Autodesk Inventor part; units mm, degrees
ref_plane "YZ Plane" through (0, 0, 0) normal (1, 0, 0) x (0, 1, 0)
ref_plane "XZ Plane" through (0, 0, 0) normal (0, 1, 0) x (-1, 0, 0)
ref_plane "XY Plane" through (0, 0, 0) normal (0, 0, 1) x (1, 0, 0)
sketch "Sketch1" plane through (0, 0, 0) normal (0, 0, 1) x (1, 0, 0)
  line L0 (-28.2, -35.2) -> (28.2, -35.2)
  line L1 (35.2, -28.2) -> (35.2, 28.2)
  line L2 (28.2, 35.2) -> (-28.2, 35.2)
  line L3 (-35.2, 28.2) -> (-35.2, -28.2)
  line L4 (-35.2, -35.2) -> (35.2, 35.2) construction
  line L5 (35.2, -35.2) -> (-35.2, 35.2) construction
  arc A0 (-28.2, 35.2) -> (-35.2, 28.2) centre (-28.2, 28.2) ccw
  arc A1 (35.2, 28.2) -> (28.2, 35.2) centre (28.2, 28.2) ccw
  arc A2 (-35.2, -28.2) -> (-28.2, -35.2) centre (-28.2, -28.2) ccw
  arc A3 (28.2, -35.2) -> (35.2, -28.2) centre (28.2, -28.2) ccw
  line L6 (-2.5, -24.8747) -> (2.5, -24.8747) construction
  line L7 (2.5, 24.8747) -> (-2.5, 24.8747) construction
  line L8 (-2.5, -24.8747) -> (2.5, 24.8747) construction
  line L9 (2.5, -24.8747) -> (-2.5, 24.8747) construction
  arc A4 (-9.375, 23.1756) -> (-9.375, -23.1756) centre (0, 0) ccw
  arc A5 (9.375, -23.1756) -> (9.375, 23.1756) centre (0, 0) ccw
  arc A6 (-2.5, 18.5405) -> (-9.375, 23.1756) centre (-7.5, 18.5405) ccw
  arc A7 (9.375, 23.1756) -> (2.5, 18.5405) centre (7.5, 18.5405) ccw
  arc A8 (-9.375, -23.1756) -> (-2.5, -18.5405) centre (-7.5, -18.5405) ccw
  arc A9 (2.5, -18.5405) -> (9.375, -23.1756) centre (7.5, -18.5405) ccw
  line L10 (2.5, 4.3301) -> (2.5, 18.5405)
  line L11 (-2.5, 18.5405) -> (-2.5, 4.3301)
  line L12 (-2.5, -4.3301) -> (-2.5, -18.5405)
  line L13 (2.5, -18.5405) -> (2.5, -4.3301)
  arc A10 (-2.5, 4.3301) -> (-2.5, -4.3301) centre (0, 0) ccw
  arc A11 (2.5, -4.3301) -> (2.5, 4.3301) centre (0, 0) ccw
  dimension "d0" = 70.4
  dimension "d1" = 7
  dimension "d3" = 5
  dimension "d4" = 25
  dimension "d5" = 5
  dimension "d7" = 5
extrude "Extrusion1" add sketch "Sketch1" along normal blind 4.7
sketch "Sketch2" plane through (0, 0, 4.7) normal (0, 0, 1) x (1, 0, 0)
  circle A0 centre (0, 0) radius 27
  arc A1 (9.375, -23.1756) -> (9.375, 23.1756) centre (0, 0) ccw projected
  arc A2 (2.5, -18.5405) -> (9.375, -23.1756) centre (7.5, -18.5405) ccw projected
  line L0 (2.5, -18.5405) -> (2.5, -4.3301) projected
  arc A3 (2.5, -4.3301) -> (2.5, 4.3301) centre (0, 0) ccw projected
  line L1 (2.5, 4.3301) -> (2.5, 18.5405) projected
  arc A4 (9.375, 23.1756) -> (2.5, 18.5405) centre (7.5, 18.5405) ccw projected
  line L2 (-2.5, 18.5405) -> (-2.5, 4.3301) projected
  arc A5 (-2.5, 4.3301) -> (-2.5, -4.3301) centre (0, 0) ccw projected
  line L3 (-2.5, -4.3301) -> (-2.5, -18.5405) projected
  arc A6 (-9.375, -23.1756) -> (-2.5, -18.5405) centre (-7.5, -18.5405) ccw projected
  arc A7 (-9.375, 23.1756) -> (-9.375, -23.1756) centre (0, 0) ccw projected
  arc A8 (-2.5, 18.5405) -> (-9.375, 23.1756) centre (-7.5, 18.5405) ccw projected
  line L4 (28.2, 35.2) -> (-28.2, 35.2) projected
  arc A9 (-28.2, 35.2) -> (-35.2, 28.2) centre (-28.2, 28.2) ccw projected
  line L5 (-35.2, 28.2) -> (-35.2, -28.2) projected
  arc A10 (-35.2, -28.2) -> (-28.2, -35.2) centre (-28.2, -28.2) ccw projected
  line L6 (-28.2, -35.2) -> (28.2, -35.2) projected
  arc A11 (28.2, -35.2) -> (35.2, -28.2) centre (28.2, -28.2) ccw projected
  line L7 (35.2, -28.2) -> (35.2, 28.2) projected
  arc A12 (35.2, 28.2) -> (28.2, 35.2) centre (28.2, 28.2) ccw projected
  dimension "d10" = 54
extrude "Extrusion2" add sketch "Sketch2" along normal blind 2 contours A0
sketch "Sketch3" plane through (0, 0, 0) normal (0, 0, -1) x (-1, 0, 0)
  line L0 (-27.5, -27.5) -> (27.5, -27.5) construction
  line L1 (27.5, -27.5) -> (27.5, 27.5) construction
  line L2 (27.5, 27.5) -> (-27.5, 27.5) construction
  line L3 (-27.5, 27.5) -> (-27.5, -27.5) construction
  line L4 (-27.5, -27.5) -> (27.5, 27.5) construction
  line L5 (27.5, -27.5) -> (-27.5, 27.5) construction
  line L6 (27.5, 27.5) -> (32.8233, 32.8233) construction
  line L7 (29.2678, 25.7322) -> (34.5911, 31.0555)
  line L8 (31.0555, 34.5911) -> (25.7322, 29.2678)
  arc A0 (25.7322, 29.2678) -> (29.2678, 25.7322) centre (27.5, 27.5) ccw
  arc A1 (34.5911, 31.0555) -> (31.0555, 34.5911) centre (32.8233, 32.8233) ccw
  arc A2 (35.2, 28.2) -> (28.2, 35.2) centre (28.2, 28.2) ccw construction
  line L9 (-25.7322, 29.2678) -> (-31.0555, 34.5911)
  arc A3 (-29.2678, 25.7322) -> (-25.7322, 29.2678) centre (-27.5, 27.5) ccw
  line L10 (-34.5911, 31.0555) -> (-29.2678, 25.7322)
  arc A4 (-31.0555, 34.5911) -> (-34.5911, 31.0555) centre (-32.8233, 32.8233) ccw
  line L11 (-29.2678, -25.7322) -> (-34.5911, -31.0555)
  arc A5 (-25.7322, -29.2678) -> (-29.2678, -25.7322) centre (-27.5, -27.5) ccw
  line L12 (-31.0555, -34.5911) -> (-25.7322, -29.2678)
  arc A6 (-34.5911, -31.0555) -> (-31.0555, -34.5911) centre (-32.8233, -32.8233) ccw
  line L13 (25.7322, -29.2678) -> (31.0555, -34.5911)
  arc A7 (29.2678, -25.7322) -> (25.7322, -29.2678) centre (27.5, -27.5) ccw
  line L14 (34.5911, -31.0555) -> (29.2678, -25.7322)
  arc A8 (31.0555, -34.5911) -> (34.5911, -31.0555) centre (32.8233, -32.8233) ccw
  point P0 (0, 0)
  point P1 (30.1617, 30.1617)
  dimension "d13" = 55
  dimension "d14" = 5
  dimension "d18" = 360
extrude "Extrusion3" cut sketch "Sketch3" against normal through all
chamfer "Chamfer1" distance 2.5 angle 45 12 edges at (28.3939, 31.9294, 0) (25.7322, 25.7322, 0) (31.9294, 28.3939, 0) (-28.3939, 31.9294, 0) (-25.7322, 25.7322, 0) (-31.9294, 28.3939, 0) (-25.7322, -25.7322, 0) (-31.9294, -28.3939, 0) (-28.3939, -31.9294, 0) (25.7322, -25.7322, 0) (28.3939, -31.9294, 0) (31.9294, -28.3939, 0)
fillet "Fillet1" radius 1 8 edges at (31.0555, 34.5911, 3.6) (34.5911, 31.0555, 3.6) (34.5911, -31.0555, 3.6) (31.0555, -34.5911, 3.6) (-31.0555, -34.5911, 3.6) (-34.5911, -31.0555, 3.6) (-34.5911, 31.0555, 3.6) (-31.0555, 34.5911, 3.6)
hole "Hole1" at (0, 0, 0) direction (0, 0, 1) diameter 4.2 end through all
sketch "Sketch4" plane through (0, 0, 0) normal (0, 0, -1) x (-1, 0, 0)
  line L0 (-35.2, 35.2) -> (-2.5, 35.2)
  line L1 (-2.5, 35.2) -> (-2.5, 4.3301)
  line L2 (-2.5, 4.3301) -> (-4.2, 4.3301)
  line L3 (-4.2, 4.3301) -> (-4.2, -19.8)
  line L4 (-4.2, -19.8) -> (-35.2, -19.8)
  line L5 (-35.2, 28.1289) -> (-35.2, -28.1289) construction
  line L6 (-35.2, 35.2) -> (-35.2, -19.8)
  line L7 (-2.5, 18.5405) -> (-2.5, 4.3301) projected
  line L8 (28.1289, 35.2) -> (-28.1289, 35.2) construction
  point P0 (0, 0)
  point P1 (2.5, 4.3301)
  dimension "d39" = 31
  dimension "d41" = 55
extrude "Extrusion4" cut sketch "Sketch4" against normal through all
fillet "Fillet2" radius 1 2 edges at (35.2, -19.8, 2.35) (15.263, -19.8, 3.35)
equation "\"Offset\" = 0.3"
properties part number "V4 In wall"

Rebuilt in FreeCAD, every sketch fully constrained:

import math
import FreeCAD as App
import Part
import Sketcher

V = App.Vector


def edges_at(feature, points):
    """Names of the edges that pass closest to the given points."""
    edges = feature.Shape.Edges
    near = lambda p: min(range(len(edges)), key=lambda i: edges[i].distToShape(Part.Vertex(*p))[0])
    return sorted({f"Edge{near(p) + 1}" for p in points})


def add_polygon(sketch, points):
    """Adds a closed chain of lines whose ends are joined by coincident constraints."""
    first, n = sketch.GeometryCount, len(points)
    for a, b in zip(points, points[1:] + points[:1]):
        sketch.addGeometry(Part.LineSegment(App.Vector(*a, 0), App.Vector(*b, 0)), False)
    for i in range(n):
        sketch.addConstraint(Sketcher.Constraint("Coincident", first + i, 2, first + (i + 1) % n, 1))

doc = App.newDocument("Part")
body = doc.addObject("PartDesign::Body", "Body")

# Sketch on XY plane
sketch1 = body.newObject("Sketcher::SketchObject", "Sketch")
sketch1.AttachmentSupport = (doc.getObject("XY_Plane"), [""])
sketch1.MapMode = "FlatFace"
sketch1.addGeometry([
    Part.ArcOfCircle(Part.Circle(V(-28.2, -28.2, 0), V(0, 0, 1), 7), math.radians(180), math.radians(270)),  # 0
    Part.LineSegment(V(-28.2, -35.2, 0), V(28.2, -35.2, 0)),  # 1
    Part.ArcOfCircle(Part.Circle(V(28.2, -28.2, 0), V(0, 0, 1), 7), math.radians(-90), math.radians(0)),  # 2
    Part.LineSegment(V(35.2, -28.2, 0), V(35.2, 28.2, 0)),  # 3
    Part.ArcOfCircle(Part.Circle(V(28.2, 28.2, 0), V(0, 0, 1), 7), math.radians(0), math.radians(90)),  # 4
    Part.LineSegment(V(28.2, 35.2, 0), V(-28.2, 35.2, 0)),  # 5
    Part.ArcOfCircle(Part.Circle(V(-28.2, 28.2, 0), V(0, 0, 1), 7), math.radians(90), math.radians(180)),  # 6
    Part.LineSegment(V(-35.2, 28.2, 0), V(-35.2, -28.2, 0)),  # 7
    Part.ArcOfCircle(Part.Circle(V(0, 0, 0), V(0, 0, 1), 25), math.radians(-68), math.radians(68)),  # 8
    Part.ArcOfCircle(Part.Circle(V(7.5, -18.5, 0), V(0, 0, 1), 5), math.radians(180), math.radians(292)),  # 9
    Part.LineSegment(V(2.5, -18.5, 0), V(2.5, -4.3, 0)),  # 10
    Part.ArcOfCircle(Part.Circle(V(0, 0, 0), V(0, 0, 1), 5), math.radians(-60), math.radians(60)),  # 11
    Part.LineSegment(V(2.5, 4.3, 0), V(2.5, 18.5, 0)),  # 12
    Part.ArcOfCircle(Part.Circle(V(7.5, 18.5, 0), V(0, 0, 1), 5), math.radians(68), math.radians(180)),  # 13
    Part.ArcOfCircle(Part.Circle(V(0, 0, 0), V(0, 0, 1), 25), math.radians(112), math.radians(248)),  # 14
    Part.ArcOfCircle(Part.Circle(V(-7.5, 18.5, 0), V(0, 0, 1), 5), math.radians(0), math.radians(112)),  # 15
    Part.LineSegment(V(-2.5, 18.5, 0), V(-2.5, 4.3, 0)),  # 16
    Part.ArcOfCircle(Part.Circle(V(0, 0, 0), V(0, 0, 1), 5), math.radians(120), math.radians(240)),  # 17
    Part.LineSegment(V(-2.5, -4.3, 0), V(-2.5, -18.5, 0)),  # 18
    Part.ArcOfCircle(Part.Circle(V(-7.5, -18.5, 0), V(0, 0, 1), 5), math.radians(-112), math.radians(0)),  # 19
], False)
sketch1.addConstraint([
    Sketcher.Constraint("Tangent", 0, 2, 1, 1),
    Sketcher.Constraint("Tangent", 1, 2, 2, 1),
    Sketcher.Constraint("Tangent", 2, 2, 3, 1),
    Sketcher.Constraint("Tangent", 3, 2, 4, 1),
    Sketcher.Constraint("Tangent", 4, 2, 5, 1),
    Sketcher.Constraint("Tangent", 5, 2, 6, 1),
    Sketcher.Constraint("Tangent", 6, 2, 7, 1),
    Sketcher.Constraint("Tangent", 7, 2, 0, 1),
    Sketcher.Constraint("Tangent", 8, 1, 9, 2),
    Sketcher.Constraint("Tangent", 9, 1, 10, 1),
    Sketcher.Constraint("Coincident", 10, 2, 11, 1),
    Sketcher.Constraint("Coincident", 11, 2, 12, 1),
    Sketcher.Constraint("Tangent", 12, 2, 13, 2),
    Sketcher.Constraint("Tangent", 13, 1, 8, 2),
    Sketcher.Constraint("Tangent", 14, 1, 15, 2),
    Sketcher.Constraint("Tangent", 15, 1, 16, 1),
    Sketcher.Constraint("Coincident", 16, 2, 17, 1),
    Sketcher.Constraint("Coincident", 17, 2, 18, 1),
    Sketcher.Constraint("Tangent", 18, 2, 19, 2),
    Sketcher.Constraint("Tangent", 19, 1, 14, 2),
    Sketcher.Constraint("Horizontal", 1),
    Sketcher.Constraint("Vertical", 3),
    Sketcher.Constraint("Horizontal", 5),
    Sketcher.Constraint("Vertical", 7),
    Sketcher.Constraint("Vertical", 10),
    Sketcher.Constraint("Vertical", 12),
    Sketcher.Constraint("Vertical", 16),
    Sketcher.Constraint("Vertical", 18),
    Sketcher.Constraint("Coincident", 8, 3, -1, 1),
    Sketcher.Constraint("Coincident", 11, 3, -1, 1),
    Sketcher.Constraint("Coincident", 14, 3, -1, 1),
    Sketcher.Constraint("Coincident", 17, 3, -1, 1),
    Sketcher.Constraint("Equal", 0, 2),
    Sketcher.Constraint("Equal", 2, 4),
    Sketcher.Constraint("Equal", 4, 6),
    Sketcher.Constraint("Equal", 9, 11),
    Sketcher.Constraint("Equal", 11, 13),
    Sketcher.Constraint("Equal", 8, 14),
    Sketcher.Constraint("Equal", 13, 15),
    Sketcher.Constraint("Equal", 15, 17),
    Sketcher.Constraint("Equal", 17, 19),
    Sketcher.Constraint("Symmetric", 0, 3, 4, 3, -1, 1),
    Sketcher.Constraint("Horizontal", 13, 3, 15, 3),
    Sketcher.Constraint("Horizontal", 9, 3, 19, 3),
    Sketcher.Constraint("Vertical", 9, 3, 13, 3),
    Sketcher.Constraint("Equal", 5, 3),
    Sketcher.Constraint("Radius", 0, 7.0),
    Sketcher.Constraint("Radius", 8, 25.0),
    Sketcher.Constraint("Radius", 9, 5.0),
    Sketcher.Constraint("DistanceX", 15, 1, 12, 2, 5.0),
    Sketcher.Constraint("DistanceX", 1, 1, 1, 2, 56.4),
])
pad1 = body.newObject("PartDesign::Pad", "Pad")
pad1.Profile = sketch1
pad1.Length = 4.7

# Sketch on XY plane
sketch2 = body.newObject("Sketcher::SketchObject", "Sketch001")
sketch2.AttachmentSupport = (doc.getObject("XY_Plane"), [""])
sketch2.MapMode = "FlatFace"
sketch2.AttachmentOffset = App.Placement(V(0, 0, 4.7), App.Rotation())
sketch2.addGeometry([
    Part.Circle(V(0, 0, 0), V(0, 0, 1), 27),  # 0
    Part.ArcOfCircle(Part.Circle(V(0, 0, 0), V(0, 0, 1), 25), math.radians(-68), math.radians(68)),  # 1
    Part.ArcOfCircle(Part.Circle(V(7.5, -18.5, 0), V(0, 0, 1), 5), math.radians(180), math.radians(292)),  # 2
    Part.LineSegment(V(2.5, -18.5, 0), V(2.5, -4.3, 0)),  # 3
    Part.ArcOfCircle(Part.Circle(V(0, 0, 0), V(0, 0, 1), 5), math.radians(-60), math.radians(60)),  # 4
    Part.LineSegment(V(2.5, 4.3, 0), V(2.5, 18.5, 0)),  # 5
    Part.ArcOfCircle(Part.Circle(V(7.5, 18.5, 0), V(0, 0, 1), 5), math.radians(68), math.radians(180)),  # 6
    Part.ArcOfCircle(Part.Circle(V(-7.5, 18.5, 0), V(0, 0, 1), 5), math.radians(0), math.radians(112)),  # 7
    Part.LineSegment(V(-2.5, 18.5, 0), V(-2.5, 4.3, 0)),  # 8
    Part.ArcOfCircle(Part.Circle(V(0, 0, 0), V(0, 0, 1), 5), math.radians(120), math.radians(240)),  # 9
    Part.LineSegment(V(-2.5, -4.3, 0), V(-2.5, -18.5, 0)),  # 10
    Part.ArcOfCircle(Part.Circle(V(-7.5, -18.5, 0), V(0, 0, 1), 5), math.radians(-112), math.radians(0)),  # 11
    Part.ArcOfCircle(Part.Circle(V(0, 0, 0), V(0, 0, 1), 25), math.radians(112), math.radians(248)),  # 12
], False)
sketch2.addConstraint([
    Sketcher.Constraint("Tangent", 1, 1, 2, 2),
    Sketcher.Constraint("Tangent", 2, 1, 3, 1),
    Sketcher.Constraint("Coincident", 3, 2, 4, 1),
    Sketcher.Constraint("Coincident", 4, 2, 5, 1),
    Sketcher.Constraint("Tangent", 5, 2, 6, 2),
    Sketcher.Constraint("Tangent", 6, 1, 1, 2),
    Sketcher.Constraint("Tangent", 7, 1, 8, 1),
    Sketcher.Constraint("Coincident", 8, 2, 9, 1),
    Sketcher.Constraint("Coincident", 9, 2, 10, 1),
    Sketcher.Constraint("Tangent", 10, 2, 11, 2),
    Sketcher.Constraint("Tangent", 11, 1, 12, 2),
    Sketcher.Constraint("Tangent", 12, 1, 7, 2),
    Sketcher.Constraint("Vertical", 3),
    Sketcher.Constraint("Vertical", 5),
    Sketcher.Constraint("Vertical", 8),
    Sketcher.Constraint("Vertical", 10),
    Sketcher.Constraint("Coincident", 0, 3, -1, 1),
    Sketcher.Constraint("Coincident", 1, 3, -1, 1),
    Sketcher.Constraint("Coincident", 4, 3, -1, 1),
    Sketcher.Constraint("Coincident", 9, 3, -1, 1),
    Sketcher.Constraint("Coincident", 12, 3, -1, 1),
    Sketcher.Constraint("Equal", 2, 4),
    Sketcher.Constraint("Equal", 4, 6),
    Sketcher.Constraint("Equal", 6, 7),
    Sketcher.Constraint("Equal", 7, 9),
    Sketcher.Constraint("Equal", 9, 11),
    Sketcher.Constraint("Equal", 1, 12),
    Sketcher.Constraint("Horizontal", 6, 3, 7, 3),
    Sketcher.Constraint("Horizontal", 2, 3, 11, 3),
    Sketcher.Constraint("Vertical", 2, 3, 6, 3),
    Sketcher.Constraint("Diameter", 0, 54.0),
    Sketcher.Constraint("Radius", 1, 25.0),
    Sketcher.Constraint("Radius", 2, 5.0),
    Sketcher.Constraint("DistanceX", 7, 3, 6, 3, 15.0),
])
pad2 = body.newObject("PartDesign::Pad", "Pad001")
pad2.Profile = sketch2
pad2.Length = 2

# Sketch on XY plane
sketch3 = body.newObject("Sketcher::SketchObject", "Sketch002")
sketch3.AttachmentSupport = (doc.getObject("XY_Plane"), [""])
sketch3.MapMode = "FlatFace"
sketch3.addGeometry([
    Part.ArcOfCircle(Part.Circle(V(-27.5, 27.5, 0), V(0, 0, 1), 2.5), math.radians(-135), math.radians(45)),  # 0
    Part.LineSegment(V(-29.3, 25.7, 0), V(-34.6, 31.1, 0)),  # 1
    Part.ArcOfCircle(Part.Circle(V(-32.8, 32.8, 0), V(0, 0, 1), 2.5), math.radians(45), math.radians(225)),  # 2
    Part.LineSegment(V(-31.1, 34.6, 0), V(-25.7, 29.3, 0)),  # 3
    Part.ArcOfCircle(Part.Circle(V(27.5, 27.5, 0), V(0, 0, 1), 2.5), math.radians(135), math.radians(315)),  # 4
    Part.LineSegment(V(25.7, 29.3, 0), V(31.1, 34.6, 0)),  # 5
    Part.ArcOfCircle(Part.Circle(V(32.8, 32.8, 0), V(0, 0, 1), 2.5), math.radians(-45), math.radians(135)),  # 6
    Part.LineSegment(V(34.6, 31.1, 0), V(29.3, 25.7, 0)),  # 7
    Part.ArcOfCircle(Part.Circle(V(27.5, -27.5, 0), V(0, 0, 1), 2.5), math.radians(45), math.radians(225)),  # 8
    Part.LineSegment(V(29.3, -25.7, 0), V(34.6, -31.1, 0)),  # 9
    Part.ArcOfCircle(Part.Circle(V(32.8, -32.8, 0), V(0, 0, 1), 2.5), math.radians(-135), math.radians(45)),  # 10
    Part.LineSegment(V(31.1, -34.6, 0), V(25.7, -29.3, 0)),  # 11
    Part.ArcOfCircle(Part.Circle(V(-27.5, -27.5, 0), V(0, 0, 1), 2.5), math.radians(-45), math.radians(135)),  # 12
    Part.LineSegment(V(-25.7, -29.3, 0), V(-31.1, -34.6, 0)),  # 13
    Part.ArcOfCircle(Part.Circle(V(-32.8, -32.8, 0), V(0, 0, 1), 2.5), math.radians(135), math.radians(315)),  # 14
    Part.LineSegment(V(-34.6, -31.1, 0), V(-29.3, -25.7, 0)),  # 15
], False)
sketch3.addConstraint([
    Sketcher.Constraint("Tangent", 0, 1, 1, 1),
    Sketcher.Constraint("Tangent", 1, 2, 2, 2),
    Sketcher.Constraint("Tangent", 2, 1, 3, 1),
    Sketcher.Constraint("Tangent", 3, 2, 0, 2),
    Sketcher.Constraint("Tangent", 4, 1, 5, 1),
    Sketcher.Constraint("Tangent", 5, 2, 6, 2),
    Sketcher.Constraint("Tangent", 6, 1, 7, 1),
    Sketcher.Constraint("Tangent", 7, 2, 4, 2),
    Sketcher.Constraint("Tangent", 8, 1, 9, 1),
    Sketcher.Constraint("Tangent", 9, 2, 10, 2),
    Sketcher.Constraint("Tangent", 10, 1, 11, 1),
    Sketcher.Constraint("Tangent", 11, 2, 8, 2),
    Sketcher.Constraint("Tangent", 12, 1, 13, 1),
    Sketcher.Constraint("Tangent", 13, 2, 14, 2),
    Sketcher.Constraint("Tangent", 14, 1, 15, 1),
    Sketcher.Constraint("Tangent", 15, 2, 12, 2),
    Sketcher.Constraint("Equal", 0, 2),
    Sketcher.Constraint("Equal", 2, 4),
    Sketcher.Constraint("Equal", 4, 6),
    Sketcher.Constraint("Equal", 6, 8),
    Sketcher.Constraint("Equal", 8, 10),
    Sketcher.Constraint("Equal", 10, 12),
    Sketcher.Constraint("Equal", 12, 14),
    Sketcher.Constraint("Symmetric", 0, 3, 8, 3, -1, 1),
    Sketcher.Constraint("Symmetric", 2, 3, 10, 3, -1, 1),
    Sketcher.Constraint("Symmetric", 4, 3, 12, 3, -1, 1),
    Sketcher.Constraint("Symmetric", 6, 3, 14, 3, -1, 1),
    Sketcher.Constraint("Symmetric", 0, 3, 4, 3, -2),
    Sketcher.Constraint("Symmetric", 2, 3, 6, 3, -2),
    Sketcher.Constraint("Perpendicular", 3, 5),
    Sketcher.Constraint("Radius", 0, 2.5),
    Sketcher.Constraint("DistanceX", 0, 3, 4, 3, 55.0),
    Sketcher.Constraint("DistanceY", 8, 3, 4, 3, 55.0),
    Sketcher.Constraint("DistanceX", 1, 2, -1, 1, 34.591),
])
pocket1 = body.newObject("PartDesign::Pocket", "Pocket")
pocket1.Profile = sketch3
pocket1.Type = "ThroughAll"
pocket1.Reversed = True
doc.recompute()

chamfer = body.newObject("PartDesign::Chamfer", "Chamfer")
chamfer.Base = (pocket1, edges_at(pocket1, [
    (28.394, 31.929, 0),
    (25.732, 25.732, 0),
    (31.929, 28.394, 0),
    (-28.394, 31.929, 0),
    (-25.732, 25.732, 0),
    (-31.929, 28.394, 0),
    (-25.732, -25.732, 0),
    (-31.929, -28.394, 0),
    (-28.394, -31.929, 0),
    (25.732, -25.732, 0),
    (28.394, -31.929, 0),
    (31.929, -28.394, 0),
]))
chamfer.Size = 2.5
doc.recompute()

fillet = body.newObject("PartDesign::Fillet", "Fillet")
fillet.Base = (chamfer, edges_at(chamfer, [
    (31.055, 34.591, 3.6),
    (34.591, 31.055, 3.6),
    (34.591, -31.055, 3.6),
    (31.055, -34.591, 3.6),
    (-31.055, -34.591, 3.6),
    (-34.591, -31.055, 3.6),
    (-34.591, 31.055, 3.6),
    (-31.055, 34.591, 3.6),
]))
fillet.Radius = 1

# Sketch on XY plane
sketch4 = body.newObject("Sketcher::SketchObject", "Sketch003")
sketch4.AttachmentSupport = (doc.getObject("XY_Plane"), [""])
sketch4.MapMode = "FlatFace"
sketch4.addGeometry(Part.Circle(V(0, 0, 0), V(0, 0, 1), 2.1), False)
sketch4.addConstraint([
    Sketcher.Constraint("Coincident", 0, 3, -1, 1),
    Sketcher.Constraint("Diameter", 0, 4.2),
])
doc.recompute()
hole = body.newObject("PartDesign::Hole", "Hole")
hole.Profile = sketch4
hole.ThreadType = "None"
hole.Diameter = 4.2
hole.DepthType = "ThroughAll"
hole.Reversed = True

# Sketch on XY plane
sketch5 = body.newObject("Sketcher::SketchObject", "Sketch004")
sketch5.AttachmentSupport = (doc.getObject("XY_Plane"), [""])
sketch5.MapMode = "FlatFace"
add_polygon(sketch5, [(2.5, 35.2), (35.2, 35.2), (35.2, -19.8), (4.2, -19.8), (4.2, 4.3), (2.5, 4.3)])  # lines 0-5
sketch5.addConstraint([
    Sketcher.Constraint("Horizontal", 0),
    Sketcher.Constraint("Vertical", 1),
    Sketcher.Constraint("Horizontal", 2),
    Sketcher.Constraint("Vertical", 3),
    Sketcher.Constraint("Horizontal", 4),
    Sketcher.Constraint("Vertical", 5),
    Sketcher.Constraint("DistanceX", 2, 2, 2, 1, 31.0),
    Sketcher.Constraint("DistanceY", 1, 2, 1, 1, 55.0),
    Sketcher.Constraint("DistanceX", 0, 1, 0, 2, 32.7),
    Sketcher.Constraint("DistanceY", 3, 1, 3, 2, 24.13),
    Sketcher.Constraint("DistanceX", -1, 1, 0, 2, 35.2),
    Sketcher.Constraint("DistanceY", -1, 1, 0, 2, 35.2),
])
pocket2 = body.newObject("PartDesign::Pocket", "Pocket001")
pocket2.Profile = sketch5
pocket2.Type = "ThroughAll"
pocket2.Reversed = True
doc.recompute()

fillet2 = body.newObject("PartDesign::Fillet", "Fillet001")
fillet2.Base = (pocket2, edges_at(pocket2, [(35.2, -19.8, 2.35), (15.263, -19.8, 3.35)]))
fillet2.Radius = 1

doc.recompute()
